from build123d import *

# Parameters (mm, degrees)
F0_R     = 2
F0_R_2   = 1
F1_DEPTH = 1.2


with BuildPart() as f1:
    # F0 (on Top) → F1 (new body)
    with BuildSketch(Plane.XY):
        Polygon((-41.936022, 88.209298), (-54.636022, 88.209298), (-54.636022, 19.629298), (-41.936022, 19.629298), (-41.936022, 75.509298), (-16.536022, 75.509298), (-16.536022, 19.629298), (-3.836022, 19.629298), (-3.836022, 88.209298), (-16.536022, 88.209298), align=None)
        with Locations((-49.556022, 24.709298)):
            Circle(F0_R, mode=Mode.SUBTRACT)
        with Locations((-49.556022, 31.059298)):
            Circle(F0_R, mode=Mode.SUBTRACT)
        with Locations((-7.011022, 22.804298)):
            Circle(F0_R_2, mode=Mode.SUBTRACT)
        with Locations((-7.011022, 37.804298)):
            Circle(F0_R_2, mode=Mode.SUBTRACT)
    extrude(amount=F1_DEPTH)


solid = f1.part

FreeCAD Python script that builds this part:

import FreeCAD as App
import Part
import Sketcher

V = App.Vector
Q = App.Units.Quantity


def add_polygon(sketch, points):
    """Adds a closed chain of lines whose ends are joined by coincident constraints."""
    first, n = sketch.GeometryCount, len(points)
    for a, b in zip(points, points[1:] + points[:1]):
        sketch.addGeometry(Part.LineSegment(App.Vector(*a, 0), App.Vector(*b, 0)), False)
    for i in range(n):
        sketch.addConstraint(Sketcher.Constraint("Coincident", first + i, 2, first + (i + 1) % n, 1))

doc = App.newDocument("Part")
params = doc.addObject("Spreadsheet::Sheet", "Params")
for row, (alias, value) in enumerate([
    ("sketch1_width", "1 in"),
    ("sketch1_width2", "2 in"),
    ("sketch1_height", "2.7 in"),
    ("sketch1_height2", "2.2 in"),
    ("pad1_length", "1.2 mm"),
], start=1):
    params.set(f"A{row}", alias)
    params.set(f"B{row}", "=" + value)
    params.setAlias(f"B{row}", alias)

body = doc.addObject("PartDesign::Body", "Body")

# Sketch on XY plane
sketch1 = body.newObject("Sketcher::SketchObject", "Sketch")
sketch1.AttachmentSupport = (doc.getObject("XY_Plane"), [""])
sketch1.MapMode = "FlatFace"
add_polygon(sketch1, [(-54.6, 88.2), (-54.6, 19.6), (-41.9, 19.6), (-41.9, 75.5), (-16.5, 75.5), (-16.5, 19.6), (-3.8, 19.6), (-3.8, 88.2)])  # lines 0-7
sketch1.addGeometry(Part.Circle(V(-49.6, 24.7, 0), V(0, 0, 1), 2), False)  # 8
sketch1.addGeometry(Part.Circle(V(-7, 22.8, 0), V(0, 0, 1), 1), False)  # 9
sketch1.addGeometry(Part.Circle(V(-49.6, 31.1, 0), V(0, 0, 1), 2), False)  # 10
sketch1.addGeometry(Part.Circle(V(-7, 37.8, 0), V(0, 0, 1), 1), False)  # 11
sketch1.addConstraint([
    Sketcher.Constraint("Vertical", 0),
    Sketcher.Constraint("Horizontal", 1),
    Sketcher.Constraint("Vertical", 2),
    Sketcher.Constraint("Horizontal", 3),
    Sketcher.Constraint("Vertical", 4),
    Sketcher.Constraint("Horizontal", 5),
    Sketcher.Constraint("Vertical", 6),
    Sketcher.Constraint("Horizontal", 7),
    Sketcher.Constraint("Equal", 8, 10),
    Sketcher.Constraint("Equal", 9, 11),
    Sketcher.Constraint("Horizontal", 1, 2, 4, 2),
    Sketcher.Constraint("Vertical", 8, 3, 10, 3),
    Sketcher.Constraint("Vertical", 9, 3, 11, 3),
    Sketcher.Constraint("Equal", 1, 5),
    Sketcher.Constraint("DistanceX", 3, 1, 3, 2, Q("1 in")),
    Sketcher.Constraint("DistanceX", 7, 2, 7, 1, Q("2 in")),
    Sketcher.Constraint("DistanceY", 0, 2, 0, 1, Q("2.7 in")),
    Sketcher.Constraint("DistanceY", 2, 1, 2, 2, Q("2.2 in")),
    Sketcher.Constraint("DistanceY", 8, 3, 2, 2, Q("2 in")),
    Sketcher.Constraint("DistanceX", 0, 2, 8, 3, Q("0.2 in")),
    Sketcher.Constraint("Diameter", 8, 4.0),
    Sketcher.Constraint("Diameter", 9, 2.0),
    Sketcher.Constraint("DistanceY", 8, 3, 10, 3, Q("0.25 in")),
    Sketcher.Constraint("DistanceX", 8, 3, 9, 3, Q("1.675 in")),
    Sketcher.Constraint("DistanceY", 9, 3, 8, 3, Q("0.075 in")),
    Sketcher.Constraint("DistanceY", -1, 1, 8, 3, 24.709298),
    Sketcher.Constraint("DistanceY", -1, 1, 11, 3, 37.804298),
    Sketcher.Constraint("DistanceX", 9, 3, -1, 1, 7.011022),
])
sketch1.setExpression("Constraints[22]", "Params.sketch1_width")
sketch1.setExpression("Constraints[23]", "Params.sketch1_width2")
sketch1.setExpression("Constraints[24]", "Params.sketch1_height")
sketch1.setExpression("Constraints[25]", "Params.sketch1_height2")
pad1 = body.newObject("PartDesign::Pad", "Pad")
pad1.Profile = sketch1
pad1.setExpression("Length", "Params.pad1_length")

doc.recompute()
